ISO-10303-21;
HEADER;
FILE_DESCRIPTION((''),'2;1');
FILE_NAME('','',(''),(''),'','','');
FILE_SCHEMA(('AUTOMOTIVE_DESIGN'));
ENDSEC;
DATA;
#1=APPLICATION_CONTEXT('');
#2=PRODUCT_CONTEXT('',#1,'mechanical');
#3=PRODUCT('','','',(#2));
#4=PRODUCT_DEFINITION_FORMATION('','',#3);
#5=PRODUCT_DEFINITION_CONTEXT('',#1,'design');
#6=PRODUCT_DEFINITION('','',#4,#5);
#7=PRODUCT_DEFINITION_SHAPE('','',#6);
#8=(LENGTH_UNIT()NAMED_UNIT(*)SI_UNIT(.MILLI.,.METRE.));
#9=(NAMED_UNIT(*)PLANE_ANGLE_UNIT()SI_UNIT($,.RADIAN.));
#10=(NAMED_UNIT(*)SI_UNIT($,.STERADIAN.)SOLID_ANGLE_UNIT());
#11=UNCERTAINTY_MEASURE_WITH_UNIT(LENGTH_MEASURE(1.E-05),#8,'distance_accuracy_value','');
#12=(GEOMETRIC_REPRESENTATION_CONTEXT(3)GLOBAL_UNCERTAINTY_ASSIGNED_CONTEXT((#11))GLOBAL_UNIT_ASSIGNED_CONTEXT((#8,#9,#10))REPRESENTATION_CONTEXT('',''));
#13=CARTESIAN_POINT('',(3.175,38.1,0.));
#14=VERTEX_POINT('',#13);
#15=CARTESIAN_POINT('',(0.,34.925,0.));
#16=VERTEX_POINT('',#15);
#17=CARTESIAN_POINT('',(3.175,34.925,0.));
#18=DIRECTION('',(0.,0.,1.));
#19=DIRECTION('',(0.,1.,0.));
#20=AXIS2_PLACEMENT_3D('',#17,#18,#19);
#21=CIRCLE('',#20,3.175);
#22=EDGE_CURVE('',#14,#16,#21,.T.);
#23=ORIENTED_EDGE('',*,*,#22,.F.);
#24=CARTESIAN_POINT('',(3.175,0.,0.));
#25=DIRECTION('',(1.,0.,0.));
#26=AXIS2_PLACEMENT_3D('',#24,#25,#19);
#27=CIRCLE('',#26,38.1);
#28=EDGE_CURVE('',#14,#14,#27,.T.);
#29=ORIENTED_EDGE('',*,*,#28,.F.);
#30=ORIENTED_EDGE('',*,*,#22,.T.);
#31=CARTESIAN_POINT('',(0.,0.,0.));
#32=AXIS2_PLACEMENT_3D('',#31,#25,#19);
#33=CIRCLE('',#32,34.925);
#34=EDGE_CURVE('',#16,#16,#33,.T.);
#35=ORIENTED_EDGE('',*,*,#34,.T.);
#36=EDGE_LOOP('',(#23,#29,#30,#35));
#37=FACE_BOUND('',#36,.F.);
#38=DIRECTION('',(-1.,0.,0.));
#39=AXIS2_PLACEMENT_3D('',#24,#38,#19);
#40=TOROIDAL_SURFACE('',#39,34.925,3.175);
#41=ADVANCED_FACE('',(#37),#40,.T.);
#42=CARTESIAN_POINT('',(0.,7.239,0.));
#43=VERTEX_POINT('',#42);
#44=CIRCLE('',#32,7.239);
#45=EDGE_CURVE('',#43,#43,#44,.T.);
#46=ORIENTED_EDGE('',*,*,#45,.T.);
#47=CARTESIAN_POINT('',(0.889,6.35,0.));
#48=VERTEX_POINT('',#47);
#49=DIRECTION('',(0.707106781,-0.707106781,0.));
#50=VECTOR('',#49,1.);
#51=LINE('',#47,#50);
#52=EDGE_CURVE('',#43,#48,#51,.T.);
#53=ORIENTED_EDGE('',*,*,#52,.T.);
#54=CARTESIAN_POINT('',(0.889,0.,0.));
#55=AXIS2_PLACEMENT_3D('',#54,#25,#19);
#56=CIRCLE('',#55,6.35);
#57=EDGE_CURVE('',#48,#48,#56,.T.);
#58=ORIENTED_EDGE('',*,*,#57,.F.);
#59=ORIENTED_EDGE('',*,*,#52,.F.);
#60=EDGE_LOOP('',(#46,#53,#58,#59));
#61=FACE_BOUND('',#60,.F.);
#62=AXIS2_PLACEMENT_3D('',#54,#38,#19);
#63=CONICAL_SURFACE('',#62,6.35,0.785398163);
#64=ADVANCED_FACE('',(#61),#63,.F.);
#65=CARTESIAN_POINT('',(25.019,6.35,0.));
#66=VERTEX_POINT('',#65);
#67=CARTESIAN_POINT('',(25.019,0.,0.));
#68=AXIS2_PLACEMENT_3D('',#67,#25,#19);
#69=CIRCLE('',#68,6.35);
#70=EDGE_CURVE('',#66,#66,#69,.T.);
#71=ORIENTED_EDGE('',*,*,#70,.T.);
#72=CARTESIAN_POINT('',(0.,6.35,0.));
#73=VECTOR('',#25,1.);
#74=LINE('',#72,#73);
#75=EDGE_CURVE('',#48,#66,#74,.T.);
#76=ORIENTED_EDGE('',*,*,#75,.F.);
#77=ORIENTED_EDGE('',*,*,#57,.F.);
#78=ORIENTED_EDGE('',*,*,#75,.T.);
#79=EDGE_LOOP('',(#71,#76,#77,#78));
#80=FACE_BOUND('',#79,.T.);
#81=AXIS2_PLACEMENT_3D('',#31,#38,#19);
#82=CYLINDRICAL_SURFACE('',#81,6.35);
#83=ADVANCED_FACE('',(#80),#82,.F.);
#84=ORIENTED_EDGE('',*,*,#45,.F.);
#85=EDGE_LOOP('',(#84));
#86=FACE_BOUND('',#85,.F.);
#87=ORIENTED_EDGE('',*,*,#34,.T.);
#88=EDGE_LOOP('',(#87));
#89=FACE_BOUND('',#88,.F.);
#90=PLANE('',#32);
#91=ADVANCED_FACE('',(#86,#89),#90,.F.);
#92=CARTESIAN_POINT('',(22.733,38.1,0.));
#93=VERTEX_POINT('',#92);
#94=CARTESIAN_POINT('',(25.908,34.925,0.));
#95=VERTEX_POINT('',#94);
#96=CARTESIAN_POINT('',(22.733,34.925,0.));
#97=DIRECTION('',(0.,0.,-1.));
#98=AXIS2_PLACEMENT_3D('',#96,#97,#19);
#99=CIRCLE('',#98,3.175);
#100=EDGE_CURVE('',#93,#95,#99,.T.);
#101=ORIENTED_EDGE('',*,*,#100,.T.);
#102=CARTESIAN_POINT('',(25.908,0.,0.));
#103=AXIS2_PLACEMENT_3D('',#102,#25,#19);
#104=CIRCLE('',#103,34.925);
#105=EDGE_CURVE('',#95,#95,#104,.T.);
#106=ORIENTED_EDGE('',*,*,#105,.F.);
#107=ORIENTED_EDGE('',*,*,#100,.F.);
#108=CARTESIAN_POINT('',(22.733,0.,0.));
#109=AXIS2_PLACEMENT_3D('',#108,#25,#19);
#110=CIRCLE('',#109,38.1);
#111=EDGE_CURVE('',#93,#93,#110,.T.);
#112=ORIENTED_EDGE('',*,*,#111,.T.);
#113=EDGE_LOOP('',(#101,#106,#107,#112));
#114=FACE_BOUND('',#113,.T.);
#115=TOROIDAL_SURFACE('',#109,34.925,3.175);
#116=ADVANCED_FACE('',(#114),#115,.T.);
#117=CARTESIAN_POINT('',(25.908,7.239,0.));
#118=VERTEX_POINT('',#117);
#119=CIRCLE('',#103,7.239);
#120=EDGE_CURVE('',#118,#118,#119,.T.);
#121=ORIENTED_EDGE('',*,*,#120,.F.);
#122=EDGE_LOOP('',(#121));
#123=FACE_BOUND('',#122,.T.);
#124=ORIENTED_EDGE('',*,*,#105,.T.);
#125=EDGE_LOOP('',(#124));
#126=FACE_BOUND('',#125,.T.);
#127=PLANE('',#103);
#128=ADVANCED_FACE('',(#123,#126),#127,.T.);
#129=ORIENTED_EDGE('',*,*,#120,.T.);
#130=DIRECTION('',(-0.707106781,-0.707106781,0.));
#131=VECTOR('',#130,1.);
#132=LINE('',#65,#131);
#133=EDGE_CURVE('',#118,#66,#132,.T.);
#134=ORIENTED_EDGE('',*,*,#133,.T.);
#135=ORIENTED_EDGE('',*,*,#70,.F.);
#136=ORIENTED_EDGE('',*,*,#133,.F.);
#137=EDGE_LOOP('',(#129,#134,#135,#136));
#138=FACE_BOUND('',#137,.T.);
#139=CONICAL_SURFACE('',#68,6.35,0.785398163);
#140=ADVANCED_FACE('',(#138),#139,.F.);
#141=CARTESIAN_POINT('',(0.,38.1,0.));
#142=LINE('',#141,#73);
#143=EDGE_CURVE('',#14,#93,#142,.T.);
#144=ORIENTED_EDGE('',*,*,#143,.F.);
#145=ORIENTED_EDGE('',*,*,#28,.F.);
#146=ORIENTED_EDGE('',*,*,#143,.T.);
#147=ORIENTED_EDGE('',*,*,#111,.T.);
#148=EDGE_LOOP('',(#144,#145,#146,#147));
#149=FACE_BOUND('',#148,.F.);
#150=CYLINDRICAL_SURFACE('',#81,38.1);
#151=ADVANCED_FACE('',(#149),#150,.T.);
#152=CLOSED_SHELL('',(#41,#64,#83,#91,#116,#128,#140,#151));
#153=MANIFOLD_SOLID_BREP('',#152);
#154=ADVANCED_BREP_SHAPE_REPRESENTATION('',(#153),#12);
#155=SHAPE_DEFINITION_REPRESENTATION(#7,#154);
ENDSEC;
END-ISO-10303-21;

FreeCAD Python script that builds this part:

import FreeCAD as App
import Part
import Sketcher
Q = App.Units.Quantity


def edges_at(feature, points):
    """Names of the edges that pass closest to the given points."""
    edges = feature.Shape.Edges
    near = lambda p: min(range(len(edges)), key=lambda i: edges[i].distToShape(Part.Vertex(*p))[0])
    return sorted({f"Edge{near(p) + 1}" for p in points})

doc = App.newDocument("Part")
body = doc.addObject("PartDesign::Body", "Body")

# Sketch on YZ plane
sketch1 = body.newObject("Sketcher::SketchObject", "Sketch")
sketch1.AttachmentSupport = (doc.getObject("YZ_Plane"), [""])
sketch1.MapMode = "FlatFace"
sketch1.addGeometry([
    Part.Circle(App.Vector(0, 0, 0), App.Vector(0, 0, 1), 38.1),
    Part.Circle(App.Vector(0, 0, 0), App.Vector(0, 0, 1), 6.35),
], False)
sketch1.addConstraint([
    Sketcher.Constraint("Coincident", 0, 3, -1, 1),
    Sketcher.Constraint("Coincident", 1, 3, -1, 1),
    Sketcher.Constraint("Diameter", 0, Q("3 in")),
    Sketcher.Constraint("Diameter", 1, Q("0.5 in")),
])
pad1 = body.newObject("PartDesign::Pad", "Pad")
pad1.Profile = sketch1
pad1.Length = Q("1.02 in")
doc.recompute()

fillet = body.newObject("PartDesign::Fillet", "Fillet")
fillet.Base = (pad1, edges_at(pad1, [(12.954, 38.1, 0), (0, -38.1, 0), (25.908, -38.1, 0)]))
fillet.Radius = Q("0.125 in")
doc.recompute()

chamfer = body.newObject("PartDesign::Chamfer", "Chamfer")
chamfer.Base = (fillet, edges_at(fillet, [(12.954, 6.35, 0), (0, -6.35, 0), (25.908, -6.35, 0)]))
chamfer.Size = Q("0.035 in")

doc.recompute()
